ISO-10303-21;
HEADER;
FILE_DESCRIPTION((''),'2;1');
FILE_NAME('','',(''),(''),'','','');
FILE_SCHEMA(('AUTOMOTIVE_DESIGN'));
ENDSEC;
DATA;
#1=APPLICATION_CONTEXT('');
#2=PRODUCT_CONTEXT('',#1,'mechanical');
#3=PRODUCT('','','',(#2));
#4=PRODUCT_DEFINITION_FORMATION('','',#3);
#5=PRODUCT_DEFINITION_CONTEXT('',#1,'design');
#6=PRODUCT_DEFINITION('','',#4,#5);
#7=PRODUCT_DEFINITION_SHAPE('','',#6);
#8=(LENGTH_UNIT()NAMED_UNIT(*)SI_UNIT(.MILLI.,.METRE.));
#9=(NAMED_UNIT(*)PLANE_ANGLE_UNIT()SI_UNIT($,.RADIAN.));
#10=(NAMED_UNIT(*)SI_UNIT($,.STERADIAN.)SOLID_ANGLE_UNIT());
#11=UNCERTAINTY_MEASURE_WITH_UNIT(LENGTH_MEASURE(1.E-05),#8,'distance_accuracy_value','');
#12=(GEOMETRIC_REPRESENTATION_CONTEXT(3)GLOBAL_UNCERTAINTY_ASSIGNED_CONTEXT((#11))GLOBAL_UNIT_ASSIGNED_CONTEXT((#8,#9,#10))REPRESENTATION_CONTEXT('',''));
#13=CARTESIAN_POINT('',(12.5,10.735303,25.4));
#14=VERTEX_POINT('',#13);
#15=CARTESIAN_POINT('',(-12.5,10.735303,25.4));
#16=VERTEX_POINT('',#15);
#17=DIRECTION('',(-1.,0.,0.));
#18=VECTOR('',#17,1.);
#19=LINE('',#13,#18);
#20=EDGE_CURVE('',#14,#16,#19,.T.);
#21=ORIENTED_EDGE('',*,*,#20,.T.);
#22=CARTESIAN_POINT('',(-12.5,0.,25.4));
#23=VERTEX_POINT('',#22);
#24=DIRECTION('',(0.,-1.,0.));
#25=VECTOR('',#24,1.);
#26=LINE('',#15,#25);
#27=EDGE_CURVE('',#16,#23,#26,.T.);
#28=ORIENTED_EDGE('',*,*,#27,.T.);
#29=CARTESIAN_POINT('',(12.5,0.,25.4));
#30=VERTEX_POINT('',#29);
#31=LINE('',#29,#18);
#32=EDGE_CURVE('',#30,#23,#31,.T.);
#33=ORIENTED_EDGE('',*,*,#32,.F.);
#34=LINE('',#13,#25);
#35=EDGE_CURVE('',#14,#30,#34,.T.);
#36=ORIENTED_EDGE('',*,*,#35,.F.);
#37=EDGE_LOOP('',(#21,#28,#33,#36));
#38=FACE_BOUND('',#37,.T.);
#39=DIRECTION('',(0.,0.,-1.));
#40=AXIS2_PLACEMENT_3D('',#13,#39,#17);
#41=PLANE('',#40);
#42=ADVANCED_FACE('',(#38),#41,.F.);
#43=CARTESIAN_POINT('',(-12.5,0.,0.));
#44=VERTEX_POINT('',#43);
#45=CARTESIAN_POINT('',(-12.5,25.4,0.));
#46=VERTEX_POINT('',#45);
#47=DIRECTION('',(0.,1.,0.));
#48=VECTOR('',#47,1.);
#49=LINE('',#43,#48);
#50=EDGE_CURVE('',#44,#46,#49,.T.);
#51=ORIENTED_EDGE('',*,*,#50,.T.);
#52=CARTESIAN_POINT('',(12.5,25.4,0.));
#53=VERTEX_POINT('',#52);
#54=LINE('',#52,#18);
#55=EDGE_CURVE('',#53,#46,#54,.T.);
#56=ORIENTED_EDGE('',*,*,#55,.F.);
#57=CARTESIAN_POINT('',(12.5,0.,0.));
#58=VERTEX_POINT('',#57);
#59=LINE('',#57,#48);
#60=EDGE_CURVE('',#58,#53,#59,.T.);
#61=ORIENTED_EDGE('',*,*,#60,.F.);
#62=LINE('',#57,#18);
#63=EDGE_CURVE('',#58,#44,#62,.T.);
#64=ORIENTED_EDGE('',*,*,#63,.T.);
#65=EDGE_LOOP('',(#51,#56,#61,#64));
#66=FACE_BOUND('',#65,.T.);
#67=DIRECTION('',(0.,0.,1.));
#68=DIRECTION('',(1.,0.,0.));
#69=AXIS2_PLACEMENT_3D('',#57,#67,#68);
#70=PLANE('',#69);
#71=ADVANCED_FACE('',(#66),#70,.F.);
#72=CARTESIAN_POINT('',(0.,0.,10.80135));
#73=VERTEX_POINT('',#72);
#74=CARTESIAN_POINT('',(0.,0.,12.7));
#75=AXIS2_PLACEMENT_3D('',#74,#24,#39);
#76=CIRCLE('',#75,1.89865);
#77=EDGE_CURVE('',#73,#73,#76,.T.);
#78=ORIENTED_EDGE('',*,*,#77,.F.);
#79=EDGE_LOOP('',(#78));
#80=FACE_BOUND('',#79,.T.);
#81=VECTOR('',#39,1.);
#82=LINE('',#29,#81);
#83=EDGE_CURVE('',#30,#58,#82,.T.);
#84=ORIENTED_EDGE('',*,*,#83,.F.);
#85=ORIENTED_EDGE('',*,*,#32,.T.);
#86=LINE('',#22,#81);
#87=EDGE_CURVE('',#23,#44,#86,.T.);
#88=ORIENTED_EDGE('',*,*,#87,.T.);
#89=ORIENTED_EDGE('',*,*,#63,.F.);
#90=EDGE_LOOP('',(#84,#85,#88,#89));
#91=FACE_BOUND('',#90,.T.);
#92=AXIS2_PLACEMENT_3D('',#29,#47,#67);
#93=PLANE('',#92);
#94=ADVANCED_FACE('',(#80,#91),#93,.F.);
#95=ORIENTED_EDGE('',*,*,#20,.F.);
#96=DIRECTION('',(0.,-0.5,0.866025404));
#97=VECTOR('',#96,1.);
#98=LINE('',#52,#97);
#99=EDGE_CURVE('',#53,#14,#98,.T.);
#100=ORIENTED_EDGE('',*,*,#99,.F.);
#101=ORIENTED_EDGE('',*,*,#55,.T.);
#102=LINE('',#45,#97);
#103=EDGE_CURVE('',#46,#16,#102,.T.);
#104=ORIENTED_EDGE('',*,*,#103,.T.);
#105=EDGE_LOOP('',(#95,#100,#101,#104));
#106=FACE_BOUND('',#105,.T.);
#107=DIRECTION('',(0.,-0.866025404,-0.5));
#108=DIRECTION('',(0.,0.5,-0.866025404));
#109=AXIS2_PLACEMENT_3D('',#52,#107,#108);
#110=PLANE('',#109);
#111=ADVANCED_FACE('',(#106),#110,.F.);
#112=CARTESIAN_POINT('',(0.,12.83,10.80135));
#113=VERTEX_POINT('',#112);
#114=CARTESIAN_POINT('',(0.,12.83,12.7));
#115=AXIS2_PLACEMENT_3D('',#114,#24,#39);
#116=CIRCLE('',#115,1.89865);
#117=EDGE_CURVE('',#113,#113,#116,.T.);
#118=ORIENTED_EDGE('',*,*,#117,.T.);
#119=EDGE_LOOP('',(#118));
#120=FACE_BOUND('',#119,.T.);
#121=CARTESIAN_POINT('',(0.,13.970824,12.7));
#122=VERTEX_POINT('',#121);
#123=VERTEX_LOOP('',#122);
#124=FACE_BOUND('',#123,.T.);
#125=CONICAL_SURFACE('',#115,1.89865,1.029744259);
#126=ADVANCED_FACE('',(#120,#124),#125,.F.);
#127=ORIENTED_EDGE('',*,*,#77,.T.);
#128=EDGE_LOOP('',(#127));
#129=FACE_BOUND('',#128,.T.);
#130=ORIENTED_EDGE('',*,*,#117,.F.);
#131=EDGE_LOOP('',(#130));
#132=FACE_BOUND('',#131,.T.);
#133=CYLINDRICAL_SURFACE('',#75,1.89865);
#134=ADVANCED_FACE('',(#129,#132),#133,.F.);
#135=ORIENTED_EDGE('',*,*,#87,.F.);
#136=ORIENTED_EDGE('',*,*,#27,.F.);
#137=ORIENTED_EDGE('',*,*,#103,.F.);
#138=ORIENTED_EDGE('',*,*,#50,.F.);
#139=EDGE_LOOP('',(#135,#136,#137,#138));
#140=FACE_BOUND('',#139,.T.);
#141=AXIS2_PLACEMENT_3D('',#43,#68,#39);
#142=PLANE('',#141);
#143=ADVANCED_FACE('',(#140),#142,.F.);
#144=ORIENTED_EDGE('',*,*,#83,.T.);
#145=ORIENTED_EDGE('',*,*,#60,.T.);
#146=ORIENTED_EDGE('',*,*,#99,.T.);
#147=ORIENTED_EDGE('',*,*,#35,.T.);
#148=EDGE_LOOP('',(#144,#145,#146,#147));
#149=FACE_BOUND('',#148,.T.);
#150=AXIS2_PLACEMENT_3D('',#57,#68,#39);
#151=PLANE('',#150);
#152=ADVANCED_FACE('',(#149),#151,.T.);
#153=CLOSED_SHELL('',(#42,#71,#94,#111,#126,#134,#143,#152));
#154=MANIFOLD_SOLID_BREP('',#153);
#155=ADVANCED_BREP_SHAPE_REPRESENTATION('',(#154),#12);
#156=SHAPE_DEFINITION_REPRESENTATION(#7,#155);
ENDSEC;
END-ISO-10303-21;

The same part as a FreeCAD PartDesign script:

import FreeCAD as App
import Part
import Sketcher
from FreeCAD import Vector
Q = App.Units.Quantity


def add_polygon(sketch, points):
    """Adds a closed chain of lines whose ends are joined by coincident constraints."""
    first, n = sketch.GeometryCount, len(points)
    for a, b in zip(points, points[1:] + points[:1]):
        sketch.addGeometry(Part.LineSegment(App.Vector(*a, 0), App.Vector(*b, 0)), False)
    for i in range(n):
        sketch.addConstraint(Sketcher.Constraint("Coincident", first + i, 2, first + (i + 1) % n, 1))

doc = App.newDocument("Part")
body = doc.addObject("PartDesign::Body", "Body")

sketch1 = body.newObject("Sketcher::SketchObject", "Sketch")
sketch1.AttachmentSupport = (doc.getObject("YZ_Plane"), [""])
sketch1.MapMode = "FlatFace"
add_polygon(sketch1, [(0, 0), (25.4, 0), (10.735303, 25.4), (0, 25.4)])
sketch1.addConstraint([
    Sketcher.Constraint("Horizontal", 0),
    Sketcher.Constraint("Horizontal", 2),
    Sketcher.Constraint("Vertical", 3),
    Sketcher.Constraint("Coincident", 3, 2, -1, 1),
    Sketcher.Constraint("Equal", 0, 3),
    Sketcher.Constraint("Angle", 1, Q("120 deg")),
    Sketcher.Constraint("DistanceX", 0, 1, 0, 2, 25.4),
])
pad1 = body.newObject("PartDesign::Pad", "Pad")
pad1.Profile = sketch1
pad1.Length = 25
pad1.Midplane = True

sketch2 = body.newObject("Sketcher::SketchObject", "Sketch001")
sketch2.AttachmentSupport = (doc.getObject("XZ_Plane"), [""])
sketch2.MapMode = "FlatFace"
sketch2.addGeometry([
    Part.Circle(Vector(-105.780968, -37.57707, 0), Vector(0, 0, 1), 1.89865),
    Part.Circle(Vector(0, 12.7, 0), Vector(0, 0, 1), 1.89865),
], False)
sketch2.addConstraint([
    Sketcher.Constraint("Equal", 0, 1),
    Sketcher.Constraint("PointOnObject", 1, 3, -2),
    Sketcher.Constraint("Diameter", 0, 3.7973),
    Sketcher.Constraint("DistanceY", -1, 1, 1, 3, 12.7),
    Sketcher.Constraint("DistanceY", 0, 3, -1, 1, 37.57707),
    Sketcher.Constraint("DistanceX", 0, 3, -1, 1, 105.780968),
])
doc.recompute()
hole = body.newObject("PartDesign::Hole", "Hole")
hole.Profile = sketch2
hole.ThreadType = "None"
hole.Diameter = 3.7973
hole.DepthType = "Dimension"
hole.Depth = 12.83
hole.DrillPoint = "Angled"
hole.DrillPointAngle = 118

doc.recompute()
